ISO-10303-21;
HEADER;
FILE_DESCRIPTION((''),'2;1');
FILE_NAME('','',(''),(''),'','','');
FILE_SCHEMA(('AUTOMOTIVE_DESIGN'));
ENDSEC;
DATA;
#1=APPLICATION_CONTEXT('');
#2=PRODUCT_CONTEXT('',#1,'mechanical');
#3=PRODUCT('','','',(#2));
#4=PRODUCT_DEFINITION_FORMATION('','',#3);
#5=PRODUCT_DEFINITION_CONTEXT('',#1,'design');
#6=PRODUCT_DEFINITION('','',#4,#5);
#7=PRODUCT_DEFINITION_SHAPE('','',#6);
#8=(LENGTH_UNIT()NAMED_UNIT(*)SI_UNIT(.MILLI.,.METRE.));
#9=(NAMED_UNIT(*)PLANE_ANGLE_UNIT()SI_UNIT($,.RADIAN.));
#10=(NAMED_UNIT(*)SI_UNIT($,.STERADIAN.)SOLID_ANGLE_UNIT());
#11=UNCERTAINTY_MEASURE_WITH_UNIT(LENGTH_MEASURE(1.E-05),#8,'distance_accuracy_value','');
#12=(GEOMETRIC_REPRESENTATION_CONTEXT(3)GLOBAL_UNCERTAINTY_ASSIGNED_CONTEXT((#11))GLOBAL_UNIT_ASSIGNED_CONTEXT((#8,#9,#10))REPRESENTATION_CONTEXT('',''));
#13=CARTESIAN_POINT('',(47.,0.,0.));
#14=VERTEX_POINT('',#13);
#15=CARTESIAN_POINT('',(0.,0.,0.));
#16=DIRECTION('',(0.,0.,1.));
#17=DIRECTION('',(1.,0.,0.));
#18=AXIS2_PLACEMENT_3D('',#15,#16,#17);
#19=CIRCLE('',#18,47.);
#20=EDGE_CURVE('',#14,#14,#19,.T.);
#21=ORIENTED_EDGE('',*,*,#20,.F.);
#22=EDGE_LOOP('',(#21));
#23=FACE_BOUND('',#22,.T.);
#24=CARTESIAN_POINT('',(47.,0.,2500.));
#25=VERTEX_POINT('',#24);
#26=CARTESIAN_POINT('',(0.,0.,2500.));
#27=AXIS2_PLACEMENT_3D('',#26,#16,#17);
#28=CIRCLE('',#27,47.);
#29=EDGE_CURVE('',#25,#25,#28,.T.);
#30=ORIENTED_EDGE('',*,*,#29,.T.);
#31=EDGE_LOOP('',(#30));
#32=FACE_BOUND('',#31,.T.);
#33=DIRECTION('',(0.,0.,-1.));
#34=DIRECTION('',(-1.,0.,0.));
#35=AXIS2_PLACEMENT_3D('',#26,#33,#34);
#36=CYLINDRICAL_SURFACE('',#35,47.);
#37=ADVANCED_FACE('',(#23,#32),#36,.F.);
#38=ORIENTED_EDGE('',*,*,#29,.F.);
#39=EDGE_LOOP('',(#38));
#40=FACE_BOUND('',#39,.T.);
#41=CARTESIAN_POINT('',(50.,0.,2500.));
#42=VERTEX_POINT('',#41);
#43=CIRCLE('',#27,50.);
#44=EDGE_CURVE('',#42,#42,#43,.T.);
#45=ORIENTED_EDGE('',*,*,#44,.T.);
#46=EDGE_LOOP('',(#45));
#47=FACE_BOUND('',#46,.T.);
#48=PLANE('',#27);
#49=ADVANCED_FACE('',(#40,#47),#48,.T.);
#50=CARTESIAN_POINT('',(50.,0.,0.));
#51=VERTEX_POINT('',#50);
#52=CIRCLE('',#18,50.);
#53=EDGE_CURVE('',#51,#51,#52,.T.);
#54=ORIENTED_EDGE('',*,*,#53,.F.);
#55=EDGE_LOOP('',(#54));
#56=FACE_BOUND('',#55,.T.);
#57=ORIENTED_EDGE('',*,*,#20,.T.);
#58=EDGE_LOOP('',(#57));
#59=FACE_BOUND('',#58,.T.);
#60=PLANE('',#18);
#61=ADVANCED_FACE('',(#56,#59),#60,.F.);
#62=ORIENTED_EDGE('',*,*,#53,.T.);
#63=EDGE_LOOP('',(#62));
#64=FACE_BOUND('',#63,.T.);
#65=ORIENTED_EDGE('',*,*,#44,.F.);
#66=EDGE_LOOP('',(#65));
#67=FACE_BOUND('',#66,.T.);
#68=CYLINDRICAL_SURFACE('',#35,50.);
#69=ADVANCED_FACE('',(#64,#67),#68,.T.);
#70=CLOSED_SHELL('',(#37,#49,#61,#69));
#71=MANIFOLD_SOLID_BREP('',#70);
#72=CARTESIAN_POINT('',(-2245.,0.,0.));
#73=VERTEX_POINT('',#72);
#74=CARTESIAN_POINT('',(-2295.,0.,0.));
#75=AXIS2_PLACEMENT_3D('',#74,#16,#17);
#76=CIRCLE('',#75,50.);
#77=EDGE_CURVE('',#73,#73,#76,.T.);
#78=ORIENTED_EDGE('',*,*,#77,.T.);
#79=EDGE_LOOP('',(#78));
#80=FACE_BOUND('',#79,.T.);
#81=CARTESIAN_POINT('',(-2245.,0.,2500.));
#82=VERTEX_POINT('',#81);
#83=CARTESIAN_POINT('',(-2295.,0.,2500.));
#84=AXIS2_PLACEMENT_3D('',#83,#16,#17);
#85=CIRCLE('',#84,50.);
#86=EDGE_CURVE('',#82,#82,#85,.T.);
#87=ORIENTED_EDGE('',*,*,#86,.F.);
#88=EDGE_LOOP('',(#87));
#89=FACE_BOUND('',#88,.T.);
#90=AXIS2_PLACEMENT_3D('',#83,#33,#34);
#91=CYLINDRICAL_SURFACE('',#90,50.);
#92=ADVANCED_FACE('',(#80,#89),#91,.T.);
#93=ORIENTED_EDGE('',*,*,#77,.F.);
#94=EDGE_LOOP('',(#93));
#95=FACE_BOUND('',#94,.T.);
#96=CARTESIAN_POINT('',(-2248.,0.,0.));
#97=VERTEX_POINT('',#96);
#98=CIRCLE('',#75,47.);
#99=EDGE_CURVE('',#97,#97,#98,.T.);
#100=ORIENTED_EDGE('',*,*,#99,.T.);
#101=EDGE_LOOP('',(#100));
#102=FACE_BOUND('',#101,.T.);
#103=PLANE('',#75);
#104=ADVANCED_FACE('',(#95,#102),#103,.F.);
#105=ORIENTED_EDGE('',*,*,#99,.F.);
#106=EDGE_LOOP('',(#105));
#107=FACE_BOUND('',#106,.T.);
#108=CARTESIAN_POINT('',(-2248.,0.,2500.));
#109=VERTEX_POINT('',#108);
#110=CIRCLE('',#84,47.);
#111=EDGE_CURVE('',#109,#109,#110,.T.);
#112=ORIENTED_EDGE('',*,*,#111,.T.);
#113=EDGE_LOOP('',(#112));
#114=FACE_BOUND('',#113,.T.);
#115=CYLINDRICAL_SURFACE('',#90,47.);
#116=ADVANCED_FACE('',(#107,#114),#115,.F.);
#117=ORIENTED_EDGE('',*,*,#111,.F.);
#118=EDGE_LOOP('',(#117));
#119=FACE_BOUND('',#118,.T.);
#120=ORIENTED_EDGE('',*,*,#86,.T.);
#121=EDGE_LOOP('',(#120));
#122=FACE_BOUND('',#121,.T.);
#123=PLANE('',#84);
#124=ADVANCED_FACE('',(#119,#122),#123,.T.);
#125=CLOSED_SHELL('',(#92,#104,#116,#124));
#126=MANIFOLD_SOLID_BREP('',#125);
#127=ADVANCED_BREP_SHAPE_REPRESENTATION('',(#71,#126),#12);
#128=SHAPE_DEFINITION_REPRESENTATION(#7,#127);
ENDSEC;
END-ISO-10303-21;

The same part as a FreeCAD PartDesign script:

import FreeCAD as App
import Part
import Sketcher
Q = App.Units.Quantity

doc = App.newDocument("Part")
body = doc.addObject("PartDesign::Body", "Body")

sketch1 = body.newObject("Sketcher::SketchObject", "Sketch")
sketch1.AttachmentSupport = (doc.getObject("XY_Plane"), [""])
sketch1.MapMode = "FlatFace"
sketch1.addGeometry([
    Part.Circle(App.Vector(0, 0, 0), App.Vector(0, 0, 1), 50),
    Part.Circle(App.Vector(0, 0, 0), App.Vector(0, 0, 1), 47),
], False)
sketch1.addConstraint([
    Sketcher.Constraint("Coincident", 0, 3, -1, 1),
    Sketcher.Constraint("Coincident", 1, 3, -1, 1),
    Sketcher.Constraint("Diameter", 0, Q("100 mm")),
    Sketcher.Constraint("Diameter", 1, Q("94 mm")),
])
pad1 = body.newObject("PartDesign::Pad", "Pad")
pad1.Profile = sketch1
pad1.Length = 2500
body2 = doc.addObject("PartDesign::Body", "Body001")

sketch2 = body2.newObject("Sketcher::SketchObject", "Sketch001")
sketch2.AttachmentSupport = (doc.getObject("XY_Plane001"), [""])
sketch2.MapMode = "FlatFace"
sketch2.addGeometry([
    Part.Circle(App.Vector(-2295, 0, 0), App.Vector(0, 0, 1), 50),
    Part.Circle(App.Vector(-2295, 0, 0), App.Vector(0, 0, 1), 47),
], False)
sketch2.addConstraint([
    Sketcher.Constraint("Coincident", 1, 3, 0, 3),
    Sketcher.Constraint("PointOnObject", 0, 3, -1),
    Sketcher.Constraint("Diameter", 0, Q("100 mm")),
    Sketcher.Constraint("Diameter", 1, Q("94 mm")),
    Sketcher.Constraint("DistanceX", 0, 3, -1, 1, Q("2295 mm")),
])
pad2 = body2.newObject("PartDesign::Pad", "Pad001")
pad2.Profile = sketch2
pad2.Length = 2500

doc.recompute()
